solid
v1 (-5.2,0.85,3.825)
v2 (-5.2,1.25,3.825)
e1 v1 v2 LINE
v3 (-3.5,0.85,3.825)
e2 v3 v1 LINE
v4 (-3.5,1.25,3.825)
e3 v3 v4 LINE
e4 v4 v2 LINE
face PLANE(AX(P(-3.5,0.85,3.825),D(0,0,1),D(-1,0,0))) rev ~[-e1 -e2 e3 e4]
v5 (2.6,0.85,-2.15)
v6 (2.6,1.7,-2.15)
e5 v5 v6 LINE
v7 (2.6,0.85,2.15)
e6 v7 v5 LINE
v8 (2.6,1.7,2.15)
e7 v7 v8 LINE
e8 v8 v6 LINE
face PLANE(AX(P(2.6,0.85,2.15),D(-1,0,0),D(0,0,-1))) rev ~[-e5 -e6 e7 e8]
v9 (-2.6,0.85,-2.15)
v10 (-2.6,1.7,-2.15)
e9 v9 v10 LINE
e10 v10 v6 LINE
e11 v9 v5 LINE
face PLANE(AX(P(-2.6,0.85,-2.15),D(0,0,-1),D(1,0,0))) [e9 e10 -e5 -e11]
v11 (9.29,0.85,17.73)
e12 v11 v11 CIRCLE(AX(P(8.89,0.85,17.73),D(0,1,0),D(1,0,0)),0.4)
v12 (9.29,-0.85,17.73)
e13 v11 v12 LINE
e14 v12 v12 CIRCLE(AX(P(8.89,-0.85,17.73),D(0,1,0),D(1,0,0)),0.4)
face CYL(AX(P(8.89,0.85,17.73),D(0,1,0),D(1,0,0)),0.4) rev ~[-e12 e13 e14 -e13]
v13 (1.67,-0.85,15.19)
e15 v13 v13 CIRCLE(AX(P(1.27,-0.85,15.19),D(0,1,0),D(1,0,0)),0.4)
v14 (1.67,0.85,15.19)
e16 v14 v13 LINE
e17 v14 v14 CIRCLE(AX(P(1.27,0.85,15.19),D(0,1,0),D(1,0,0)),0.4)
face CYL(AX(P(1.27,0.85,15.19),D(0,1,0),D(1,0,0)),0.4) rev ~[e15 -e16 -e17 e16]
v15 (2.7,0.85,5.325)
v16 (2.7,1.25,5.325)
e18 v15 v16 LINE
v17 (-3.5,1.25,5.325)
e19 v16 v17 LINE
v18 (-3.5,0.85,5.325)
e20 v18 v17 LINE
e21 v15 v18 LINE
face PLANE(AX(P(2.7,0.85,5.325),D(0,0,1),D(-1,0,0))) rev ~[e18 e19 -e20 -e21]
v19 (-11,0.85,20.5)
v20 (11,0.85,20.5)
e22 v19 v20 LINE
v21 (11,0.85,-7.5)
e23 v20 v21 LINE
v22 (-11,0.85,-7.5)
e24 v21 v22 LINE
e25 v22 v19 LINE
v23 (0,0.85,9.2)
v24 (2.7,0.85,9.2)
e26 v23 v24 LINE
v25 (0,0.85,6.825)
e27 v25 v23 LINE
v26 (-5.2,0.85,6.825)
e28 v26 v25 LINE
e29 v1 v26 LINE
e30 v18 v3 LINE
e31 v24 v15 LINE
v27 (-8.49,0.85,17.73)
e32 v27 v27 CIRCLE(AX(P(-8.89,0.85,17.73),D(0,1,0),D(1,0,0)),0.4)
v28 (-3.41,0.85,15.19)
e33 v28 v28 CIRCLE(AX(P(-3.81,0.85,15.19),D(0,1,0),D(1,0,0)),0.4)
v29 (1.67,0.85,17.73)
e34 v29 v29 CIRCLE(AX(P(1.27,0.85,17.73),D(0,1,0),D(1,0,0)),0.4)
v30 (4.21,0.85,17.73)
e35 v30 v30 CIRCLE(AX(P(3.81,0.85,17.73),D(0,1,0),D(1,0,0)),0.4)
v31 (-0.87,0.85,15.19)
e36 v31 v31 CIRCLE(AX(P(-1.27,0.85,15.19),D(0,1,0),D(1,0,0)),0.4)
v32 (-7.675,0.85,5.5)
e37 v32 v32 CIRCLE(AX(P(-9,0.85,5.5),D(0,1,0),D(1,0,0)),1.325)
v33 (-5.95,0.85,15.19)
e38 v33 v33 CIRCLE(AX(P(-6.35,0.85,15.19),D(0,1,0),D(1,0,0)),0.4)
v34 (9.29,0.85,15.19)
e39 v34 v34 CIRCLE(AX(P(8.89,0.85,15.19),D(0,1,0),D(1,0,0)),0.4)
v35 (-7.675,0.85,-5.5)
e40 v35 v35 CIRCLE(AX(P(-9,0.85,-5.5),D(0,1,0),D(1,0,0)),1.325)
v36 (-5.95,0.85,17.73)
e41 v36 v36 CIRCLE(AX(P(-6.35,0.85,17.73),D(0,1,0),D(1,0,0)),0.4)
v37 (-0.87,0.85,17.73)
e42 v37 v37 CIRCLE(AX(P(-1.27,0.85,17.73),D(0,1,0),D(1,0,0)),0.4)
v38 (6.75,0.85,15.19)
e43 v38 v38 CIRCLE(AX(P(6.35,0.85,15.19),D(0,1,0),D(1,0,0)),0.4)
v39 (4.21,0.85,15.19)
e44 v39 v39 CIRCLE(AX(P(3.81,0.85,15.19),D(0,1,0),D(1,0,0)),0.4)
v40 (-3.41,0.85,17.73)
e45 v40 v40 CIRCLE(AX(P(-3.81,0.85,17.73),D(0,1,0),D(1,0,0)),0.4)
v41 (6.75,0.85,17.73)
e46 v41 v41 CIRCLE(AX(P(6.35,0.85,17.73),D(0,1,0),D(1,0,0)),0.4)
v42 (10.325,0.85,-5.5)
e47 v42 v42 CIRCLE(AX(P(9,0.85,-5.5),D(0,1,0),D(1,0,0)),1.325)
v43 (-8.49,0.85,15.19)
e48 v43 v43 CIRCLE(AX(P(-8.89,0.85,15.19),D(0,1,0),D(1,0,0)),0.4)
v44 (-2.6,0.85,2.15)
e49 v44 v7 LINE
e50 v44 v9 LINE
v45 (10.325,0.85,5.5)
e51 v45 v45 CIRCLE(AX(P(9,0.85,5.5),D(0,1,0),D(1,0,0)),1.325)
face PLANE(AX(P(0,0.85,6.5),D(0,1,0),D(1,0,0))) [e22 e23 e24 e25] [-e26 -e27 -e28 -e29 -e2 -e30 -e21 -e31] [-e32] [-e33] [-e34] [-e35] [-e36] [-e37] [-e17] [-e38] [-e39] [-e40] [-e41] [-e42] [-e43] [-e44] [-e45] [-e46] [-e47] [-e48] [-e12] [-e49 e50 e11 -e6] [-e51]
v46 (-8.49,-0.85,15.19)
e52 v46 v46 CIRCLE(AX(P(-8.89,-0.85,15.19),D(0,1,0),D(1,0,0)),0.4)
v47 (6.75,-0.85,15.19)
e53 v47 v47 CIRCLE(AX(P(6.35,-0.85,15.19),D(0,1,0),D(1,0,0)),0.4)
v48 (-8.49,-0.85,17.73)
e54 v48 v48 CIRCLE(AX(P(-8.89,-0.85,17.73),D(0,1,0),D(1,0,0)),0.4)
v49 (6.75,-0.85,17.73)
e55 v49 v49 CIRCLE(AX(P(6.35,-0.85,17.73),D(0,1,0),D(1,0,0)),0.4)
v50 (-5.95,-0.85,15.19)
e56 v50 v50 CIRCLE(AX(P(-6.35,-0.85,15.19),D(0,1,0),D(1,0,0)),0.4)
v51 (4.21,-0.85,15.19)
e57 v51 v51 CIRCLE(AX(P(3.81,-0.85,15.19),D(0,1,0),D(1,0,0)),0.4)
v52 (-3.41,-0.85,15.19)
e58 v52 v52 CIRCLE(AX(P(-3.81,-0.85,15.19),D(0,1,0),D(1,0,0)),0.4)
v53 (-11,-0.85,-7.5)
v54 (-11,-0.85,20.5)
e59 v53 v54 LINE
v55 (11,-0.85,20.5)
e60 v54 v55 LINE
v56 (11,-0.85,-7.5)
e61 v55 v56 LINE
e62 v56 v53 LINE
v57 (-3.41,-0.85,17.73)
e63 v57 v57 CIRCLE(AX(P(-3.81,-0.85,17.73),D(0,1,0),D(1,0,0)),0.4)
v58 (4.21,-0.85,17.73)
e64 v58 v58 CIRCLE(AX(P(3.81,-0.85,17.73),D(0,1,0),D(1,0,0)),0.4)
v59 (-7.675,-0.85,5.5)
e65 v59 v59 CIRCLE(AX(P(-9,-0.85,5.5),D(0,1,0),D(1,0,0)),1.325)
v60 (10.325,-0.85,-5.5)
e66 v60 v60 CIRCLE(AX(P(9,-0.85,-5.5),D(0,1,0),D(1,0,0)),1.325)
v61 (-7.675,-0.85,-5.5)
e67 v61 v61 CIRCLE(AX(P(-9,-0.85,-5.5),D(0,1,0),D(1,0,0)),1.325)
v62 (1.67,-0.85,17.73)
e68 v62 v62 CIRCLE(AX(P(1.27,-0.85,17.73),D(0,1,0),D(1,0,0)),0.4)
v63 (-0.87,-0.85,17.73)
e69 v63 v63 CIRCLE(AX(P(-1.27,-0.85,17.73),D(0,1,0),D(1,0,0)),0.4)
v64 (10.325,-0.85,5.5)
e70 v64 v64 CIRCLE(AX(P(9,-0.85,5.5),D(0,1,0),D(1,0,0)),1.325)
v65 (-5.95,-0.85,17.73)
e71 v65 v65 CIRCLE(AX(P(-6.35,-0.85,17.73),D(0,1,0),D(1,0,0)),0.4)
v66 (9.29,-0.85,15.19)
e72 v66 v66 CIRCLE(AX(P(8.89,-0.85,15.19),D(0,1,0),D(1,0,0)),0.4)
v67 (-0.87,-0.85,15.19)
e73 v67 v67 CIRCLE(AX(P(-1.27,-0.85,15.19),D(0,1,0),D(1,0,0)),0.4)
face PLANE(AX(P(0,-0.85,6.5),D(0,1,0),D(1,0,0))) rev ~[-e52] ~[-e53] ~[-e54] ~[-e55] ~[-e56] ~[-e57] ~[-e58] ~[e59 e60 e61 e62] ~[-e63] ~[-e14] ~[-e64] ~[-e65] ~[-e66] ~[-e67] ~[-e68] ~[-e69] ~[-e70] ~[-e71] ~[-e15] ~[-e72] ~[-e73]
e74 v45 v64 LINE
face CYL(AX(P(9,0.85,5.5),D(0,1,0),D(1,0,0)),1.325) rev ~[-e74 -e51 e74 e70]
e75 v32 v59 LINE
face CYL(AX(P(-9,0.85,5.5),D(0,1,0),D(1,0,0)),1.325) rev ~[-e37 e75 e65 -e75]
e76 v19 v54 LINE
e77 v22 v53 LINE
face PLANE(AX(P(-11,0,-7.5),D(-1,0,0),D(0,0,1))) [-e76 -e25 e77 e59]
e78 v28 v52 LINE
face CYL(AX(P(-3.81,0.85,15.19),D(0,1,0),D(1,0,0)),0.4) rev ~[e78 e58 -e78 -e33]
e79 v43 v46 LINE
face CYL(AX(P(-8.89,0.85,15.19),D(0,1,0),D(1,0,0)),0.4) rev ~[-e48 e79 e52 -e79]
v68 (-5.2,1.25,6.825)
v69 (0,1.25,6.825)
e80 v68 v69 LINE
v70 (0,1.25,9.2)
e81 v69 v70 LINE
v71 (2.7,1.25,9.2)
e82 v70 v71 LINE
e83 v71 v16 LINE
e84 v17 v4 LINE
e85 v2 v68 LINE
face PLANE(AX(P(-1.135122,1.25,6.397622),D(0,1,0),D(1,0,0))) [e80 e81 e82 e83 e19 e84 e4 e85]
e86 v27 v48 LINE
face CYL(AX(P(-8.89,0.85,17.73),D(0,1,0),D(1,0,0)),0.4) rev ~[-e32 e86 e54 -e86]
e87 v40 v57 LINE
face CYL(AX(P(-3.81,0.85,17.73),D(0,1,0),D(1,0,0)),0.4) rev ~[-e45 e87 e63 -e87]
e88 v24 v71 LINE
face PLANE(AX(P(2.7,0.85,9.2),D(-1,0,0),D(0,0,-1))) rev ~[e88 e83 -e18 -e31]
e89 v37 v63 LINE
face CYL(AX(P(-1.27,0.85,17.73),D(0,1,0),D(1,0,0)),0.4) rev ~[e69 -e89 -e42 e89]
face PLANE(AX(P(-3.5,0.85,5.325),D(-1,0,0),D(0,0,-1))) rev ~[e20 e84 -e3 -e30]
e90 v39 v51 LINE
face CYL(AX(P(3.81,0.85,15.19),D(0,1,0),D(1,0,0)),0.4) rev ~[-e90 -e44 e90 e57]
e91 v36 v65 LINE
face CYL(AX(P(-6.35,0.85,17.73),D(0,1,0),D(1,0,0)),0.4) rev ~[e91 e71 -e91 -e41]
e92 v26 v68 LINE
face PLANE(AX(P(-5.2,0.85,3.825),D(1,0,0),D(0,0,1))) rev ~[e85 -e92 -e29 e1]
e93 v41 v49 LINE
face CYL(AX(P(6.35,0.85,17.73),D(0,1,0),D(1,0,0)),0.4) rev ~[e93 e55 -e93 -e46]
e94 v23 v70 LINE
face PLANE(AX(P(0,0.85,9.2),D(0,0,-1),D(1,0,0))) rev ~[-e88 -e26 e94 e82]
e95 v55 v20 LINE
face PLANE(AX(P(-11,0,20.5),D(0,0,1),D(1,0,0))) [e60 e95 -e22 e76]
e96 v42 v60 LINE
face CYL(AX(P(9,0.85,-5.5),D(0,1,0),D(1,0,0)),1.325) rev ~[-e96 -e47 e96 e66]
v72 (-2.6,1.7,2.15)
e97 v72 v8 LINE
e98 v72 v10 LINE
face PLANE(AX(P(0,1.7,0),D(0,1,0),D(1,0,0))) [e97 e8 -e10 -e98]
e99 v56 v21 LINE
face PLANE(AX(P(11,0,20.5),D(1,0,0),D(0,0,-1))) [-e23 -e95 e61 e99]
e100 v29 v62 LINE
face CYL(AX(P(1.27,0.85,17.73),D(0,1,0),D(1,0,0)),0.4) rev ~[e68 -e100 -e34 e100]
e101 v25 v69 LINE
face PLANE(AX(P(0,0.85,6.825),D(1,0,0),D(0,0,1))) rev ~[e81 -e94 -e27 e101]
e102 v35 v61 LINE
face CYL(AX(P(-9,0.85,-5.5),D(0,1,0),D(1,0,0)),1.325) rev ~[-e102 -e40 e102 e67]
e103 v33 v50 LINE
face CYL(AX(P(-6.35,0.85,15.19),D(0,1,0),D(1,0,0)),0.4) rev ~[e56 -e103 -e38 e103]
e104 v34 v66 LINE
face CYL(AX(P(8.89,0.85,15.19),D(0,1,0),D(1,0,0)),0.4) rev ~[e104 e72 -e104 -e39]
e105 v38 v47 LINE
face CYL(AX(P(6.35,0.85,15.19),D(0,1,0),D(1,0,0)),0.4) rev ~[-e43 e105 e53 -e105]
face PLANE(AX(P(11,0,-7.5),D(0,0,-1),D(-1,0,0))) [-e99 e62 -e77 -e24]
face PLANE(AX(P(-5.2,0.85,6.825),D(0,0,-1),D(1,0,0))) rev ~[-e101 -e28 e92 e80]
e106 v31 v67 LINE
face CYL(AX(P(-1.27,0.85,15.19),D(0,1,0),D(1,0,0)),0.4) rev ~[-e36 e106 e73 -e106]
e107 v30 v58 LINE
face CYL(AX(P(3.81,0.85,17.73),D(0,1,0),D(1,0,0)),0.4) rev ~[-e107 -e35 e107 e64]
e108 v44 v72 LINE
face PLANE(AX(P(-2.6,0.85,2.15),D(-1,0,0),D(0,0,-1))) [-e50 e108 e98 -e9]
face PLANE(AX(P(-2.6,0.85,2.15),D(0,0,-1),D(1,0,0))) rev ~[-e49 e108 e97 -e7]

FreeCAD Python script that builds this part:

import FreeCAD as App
import Part
import Sketcher

V = App.Vector
Q = App.Units.Quantity


def add_polygon(sketch, points):
    """Adds a closed chain of lines whose ends are joined by coincident constraints."""
    first, n = sketch.GeometryCount, len(points)
    for a, b in zip(points, points[1:] + points[:1]):
        sketch.addGeometry(Part.LineSegment(App.Vector(*a, 0), App.Vector(*b, 0)), False)
    for i in range(n):
        sketch.addConstraint(Sketcher.Constraint("Coincident", first + i, 2, first + (i + 1) % n, 1))

doc = App.newDocument("Part")
params = doc.addObject("Spreadsheet::Sheet", "Params")
for row, (alias, value) in enumerate([
    ("sketch1_width", "22 mm"),
    ("sketch1_height", "28 mm"),
    ("pad1_length", "1.7 mm"),
    ("sketch2_diameter", "0.8 mm"),
    ("sketch2_diameter2", "2.65 mm"),
    ("sketch3_width", "5.2 mm"),
    ("sketch3_height", "4.3 mm"),
    ("pad2_length", "0.85 mm"),
    ("sketch4_height", "3 mm"),
    ("sketch4_width", "5.2 mm"),
    ("sketch4_width2", "2.7 mm"),
    ("sketch4_width3", "6.2 mm"),
    ("sketch4_height2", "1.5 mm"),
    ("pad3_length", "0.4 mm"),
], start=1):
    params.set(f"A{row}", alias)
    params.set(f"B{row}", "=" + value)
    params.setAlias(f"B{row}", alias)

body = doc.addObject("PartDesign::Body", "Body")

# Sketch on XZ plane
sketch1 = body.newObject("Sketcher::SketchObject", "Sketch")
sketch1.AttachmentSupport = (doc.getObject("XZ_Plane"), [""])
sketch1.MapMode = "FlatFace"
add_polygon(sketch1, [(-11, 20), (11, 20), (11, -8), (-11, -8)])  # lines 0-3
sketch1.addConstraint(Sketcher.Constraint("Horizontal", 0))
sketch1.addConstraint(Sketcher.Constraint("Vertical", 1))
sketch1.addConstraint(Sketcher.Constraint("Horizontal", 2))
sketch1.addConstraint(Sketcher.Constraint("Vertical", 3))
sketch1.addConstraint(Sketcher.Constraint("DistanceX", 0, 1, 0, 2, Q("22 mm")))
sketch1.addConstraint(Sketcher.Constraint("DistanceY", 1, 2, 1, 1, Q("28 mm")))
sketch1.addConstraint(Sketcher.Constraint("DistanceX", -1, 1, 0, 2, Q("11 mm")))
sketch1.addConstraint(Sketcher.Constraint("DistanceY", -1, 1, 0, 2, Q("20.5 mm")))
sketch1.setExpression("Constraints[8]", "Params.sketch1_width")
sketch1.setExpression("Constraints[9]", "Params.sketch1_height")
pad1 = body.newObject("PartDesign::Pad", "Pad")
pad1.Profile = sketch1
pad1.setExpression("Length", "Params.pad1_length")
pad1.Midplane = True

# Sketch on XZ plane
sketch2 = body.newObject("Sketcher::SketchObject", "Sketch001")
sketch2.AttachmentSupport = (doc.getObject("XZ_Plane"), [""])
sketch2.MapMode = "FlatFace"
sketch2.AttachmentOffset = App.Placement(V(0, 0, -0.85), App.Rotation())
sketch2.addGeometry(Part.Circle(V(-9, -5.5, 0), V(0, 0, 1), 1.32), False)
sketch2.addGeometry(Part.Circle(V(9, -5.5, 0), V(0, 0, 1), 1.32), False)
sketch2.addGeometry(Part.Circle(V(9, 5.5, 0), V(0, 0, 1), 1.32), False)
sketch2.addGeometry(Part.Circle(V(-9, 5.5, 0), V(0, 0, 1), 1.32), False)
sketch2.addGeometry(Part.Circle(V(-8.89, 15.19, 0), V(0, 0, 1), 0.4), False)
sketch2.addGeometry(Part.Circle(V(-6.35, 15.19, 0), V(0, 0, 1), 0.4), False)
sketch2.addGeometry(Part.Circle(V(-3.81, 15.19, 0), V(0, 0, 1), 0.4), False)
sketch2.addGeometry(Part.Circle(V(-1.27, 15.19, 0), V(0, 0, 1), 0.4), False)
sketch2.addGeometry(Part.Circle(V(1.27, 15.19, 0), V(0, 0, 1), 0.4), False)
sketch2.addGeometry(Part.Circle(V(3.81, 15.19, 0), V(0, 0, 1), 0.4), False)
sketch2.addGeometry(Part.Circle(V(6.35, 15.19, 0), V(0, 0, 1), 0.4), False)
sketch2.addGeometry(Part.Circle(V(8.89, 15.19, 0), V(0, 0, 1), 0.4), False)
sketch2.addGeometry(Part.Circle(V(-6.35, 17.73, 0), V(0, 0, 1), 0.4), False)
sketch2.addGeometry(Part.Circle(V(-3.81, 17.73, 0), V(0, 0, 1), 0.4), False)
sketch2.addGeometry(Part.Circle(V(-1.27, 17.73, 0), V(0, 0, 1), 0.4), False)
sketch2.addGeometry(Part.Circle(V(1.27, 17.73, 0), V(0, 0, 1), 0.4), False)
sketch2.addGeometry(Part.Circle(V(3.81, 17.73, 0), V(0, 0, 1), 0.4), False)
sketch2.addGeometry(Part.Circle(V(6.35, 17.73, 0), V(0, 0, 1), 0.4), False)
sketch2.addGeometry(Part.Circle(V(8.89, 17.73, 0), V(0, 0, 1), 0.4), False)
sketch2.addGeometry(Part.Circle(V(-8.89, 17.73, 0), V(0, 0, 1), 0.4), False)
sketch2.addConstraint(Sketcher.Constraint("Equal", 0, 1))
sketch2.addConstraint(Sketcher.Constraint("Equal", 1, 2))
sketch2.addConstraint(Sketcher.Constraint("Equal", 2, 3))
sketch2.addConstraint(Sketcher.Constraint("Equal", 4, 5))
sketch2.addConstraint(Sketcher.Constraint("Equal", 5, 6))
sketch2.addConstraint(Sketcher.Constraint("Equal", 6, 7))
sketch2.addConstraint(Sketcher.Constraint("Equal", 7, 8))
sketch2.addConstraint(Sketcher.Constraint("Equal", 8, 9))
sketch2.addConstraint(Sketcher.Constraint("Equal", 9, 10))
sketch2.addConstraint(Sketcher.Constraint("Equal", 10, 11))
sketch2.addConstraint(Sketcher.Constraint("Equal", 11, 12))
sketch2.addConstraint(Sketcher.Constraint("Equal", 12, 13))
sketch2.addConstraint(Sketcher.Constraint("Equal", 13, 14))
sketch2.addConstraint(Sketcher.Constraint("Equal", 14, 15))
sketch2.addConstraint(Sketcher.Constraint("Equal", 15, 16))
sketch2.addConstraint(Sketcher.Constraint("Equal", 16, 17))
sketch2.addConstraint(Sketcher.Constraint("Equal", 17, 18))
sketch2.addConstraint(Sketcher.Constraint("Equal", 18, 19))
sketch2.addConstraint(Sketcher.Constraint("Symmetric", 0, 3, 2, 3, -1, 1))
sketch2.addConstraint(Sketcher.Constraint("Symmetric", 1, 3, 3, 3, -1, 1))
sketch2.addConstraint(Sketcher.Constraint("Symmetric", 0, 3, 1, 3, -2))
sketch2.addConstraint(Sketcher.Constraint("Symmetric", 7, 3, 8, 3, -2))
sketch2.addConstraint(Sketcher.Constraint("Symmetric", 6, 3, 9, 3, -2))
sketch2.addConstraint(Sketcher.Constraint("Symmetric", 5, 3, 10, 3, -2))
sketch2.addConstraint(Sketcher.Constraint("Symmetric", 4, 3, 11, 3, -2))
sketch2.addConstraint(Sketcher.Constraint("Symmetric", 14, 3, 15, 3, -2))
sketch2.addConstraint(Sketcher.Constraint("Symmetric", 13, 3, 16, 3, -2))
sketch2.addConstraint(Sketcher.Constraint("Symmetric", 12, 3, 17, 3, -2))
sketch2.addConstraint(Sketcher.Constraint("Symmetric", 18, 3, 19, 3, -2))
sketch2.addConstraint(Sketcher.Constraint("Horizontal", 4, 3, 5, 3))
sketch2.addConstraint(Sketcher.Constraint("Horizontal", 5, 3, 6, 3))
sketch2.addConstraint(Sketcher.Constraint("Horizontal", 6, 3, 7, 3))
sketch2.addConstraint(Sketcher.Constraint("Horizontal", 12, 3, 13, 3))
sketch2.addConstraint(Sketcher.Constraint("Horizontal", 13, 3, 14, 3))
sketch2.addConstraint(Sketcher.Constraint("Horizontal", 17, 3, 18, 3))
sketch2.addConstraint(Sketcher.Constraint("Vertical", 5, 3, 12, 3))
sketch2.addConstraint(Sketcher.Constraint("Vertical", 6, 3, 13, 3))
sketch2.addConstraint(Sketcher.Constraint("Vertical", 7, 3, 14, 3))
sketch2.addConstraint(Sketcher.Constraint("Vertical", 11, 3, 18, 3))
sketch2.addConstraint(Sketcher.Constraint("Diameter", 4, Q("0.8 mm")))
sketch2.addConstraint(Sketcher.Constraint("Diameter", 0, Q("2.65 mm")))
sketch2.addConstraint(Sketcher.Constraint("DistanceX", 0, 3, -1, 1, Q("9 mm")))
sketch2.addConstraint(Sketcher.Constraint("DistanceY", 1, 3, 2, 3, Q("11 mm")))
sketch2.addConstraint(Sketcher.Constraint("DistanceX", 4, 3, -1, 1, Q("8.89 mm")))
sketch2.addConstraint(Sketcher.Constraint("DistanceY", -1, 1, 4, 3, Q("15.19 mm")))
sketch2.addConstraint(Sketcher.Constraint("DistanceX", 5, 3, -1, 1, Q("6.35 mm")))
sketch2.addConstraint(Sketcher.Constraint("DistanceX", 6, 3, -1, 1, Q("3.81 mm")))
sketch2.addConstraint(Sketcher.Constraint("DistanceX", 7, 3, -1, 1, Q("1.27 mm")))
sketch2.addConstraint(Sketcher.Constraint("DistanceY", -1, 1, 12, 3, Q("17.73 mm")))
sketch2.setExpression("Constraints[39]", "Params.sketch2_diameter")
sketch2.setExpression("Constraints[40]", "Params.sketch2_diameter2")
pocket1 = body.newObject("PartDesign::Pocket", "Pocket")
pocket1.Profile = sketch2
pocket1.Type = "ThroughAll"
pocket1.Reversed = True

# Sketch on XZ plane
sketch3 = body.newObject("Sketcher::SketchObject", "Sketch002")
sketch3.AttachmentSupport = (doc.getObject("XZ_Plane"), [""])
sketch3.MapMode = "FlatFace"
sketch3.AttachmentOffset = App.Placement(V(0, 0, -0.85), App.Rotation())
add_polygon(sketch3, [(-2.6, -2.1), (-2.6, 2.1), (2.6, 2.1), (2.6, -2.1)])  # lines 0-3
sketch3.addConstraint(Sketcher.Constraint("Vertical", 0))
sketch3.addConstraint(Sketcher.Constraint("Horizontal", 1))
sketch3.addConstraint(Sketcher.Constraint("Vertical", 2))
sketch3.addConstraint(Sketcher.Constraint("Horizontal", 3))
sketch3.addConstraint(Sketcher.Constraint("Symmetric", 0, 2, 2, 2, -1, 1))
sketch3.addConstraint(Sketcher.Constraint("DistanceX", 1, 1, 1, 2, Q("5.2 mm")))
sketch3.addConstraint(Sketcher.Constraint("DistanceY", 0, 1, 0, 2, Q("4.3 mm")))
sketch3.setExpression("Constraints[9]", "Params.sketch3_width")
sketch3.setExpression("Constraints[10]", "Params.sketch3_height")
pad2 = body.newObject("PartDesign::Pad", "Pad001")
pad2.Profile = sketch3
pad2.setExpression("Length", "Params.pad2_length")
pad2.Reversed = True

# Sketch on XZ plane
sketch4 = body.newObject("Sketcher::SketchObject", "Sketch003")
sketch4.AttachmentSupport = (doc.getObject("XZ_Plane"), [""])
sketch4.MapMode = "FlatFace"
sketch4.AttachmentOffset = App.Placement(V(0, 0, -0.85), App.Rotation())
add_polygon(sketch4, [(-5.2, 3.8), (-5.2, 6.8), (0, 6.8), (0, 9.2), (2.7, 9.2), (2.7, 5.3), (-3.5, 5.3), (-3.5, 3.8)])  # lines 0-7
sketch4.addConstraint(Sketcher.Constraint("Vertical", 0))
sketch4.addConstraint(Sketcher.Constraint("Horizontal", 1))
sketch4.addConstraint(Sketcher.Constraint("Vertical", 2))
sketch4.addConstraint(Sketcher.Constraint("Horizontal", 3))
sketch4.addConstraint(Sketcher.Constraint("Vertical", 4))
sketch4.addConstraint(Sketcher.Constraint("Horizontal", 5))
sketch4.addConstraint(Sketcher.Constraint("Vertical", 6))
sketch4.addConstraint(Sketcher.Constraint("Horizontal", 7))
sketch4.addConstraint(Sketcher.Constraint("PointOnObject", 1, 2, -2))
sketch4.addConstraint(Sketcher.Constraint("DistanceY", 0, 1, 0, 2, Q("3 mm")))
sketch4.addConstraint(Sketcher.Constraint("DistanceX", 1, 1, 1, 2, Q("5.2 mm")))
sketch4.addConstraint(Sketcher.Constraint("DistanceX", 3, 1, 3, 2, Q("2.7 mm")))
sketch4.addConstraint(Sketcher.Constraint("DistanceX", 5, 2, 5, 1, Q("6.2 mm")))
sketch4.addConstraint(Sketcher.Constraint("DistanceY", 6, 2, 6, 1, Q("1.5 mm")))
sketch4.addConstraint(Sketcher.Constraint("DistanceY", -1, 1, 2, 2, Q("9.2 mm")))
sketch4.addConstraint(Sketcher.Constraint("DistanceY", 2, 1, 2, 2, Q("2.375 mm")))
sketch4.setExpression("Constraints[17]", "Params.sketch4_height")
sketch4.setExpression("Constraints[18]", "Params.sketch4_width")
sketch4.setExpression("Constraints[19]", "Params.sketch4_width2")
sketch4.setExpression("Constraints[20]", "Params.sketch4_width3")
sketch4.setExpression("Constraints[21]", "Params.sketch4_height2")
pad3 = body.newObject("PartDesign::Pad", "Pad002")
pad3.Profile = sketch4
pad3.setExpression("Length", "Params.pad3_length")
pad3.Reversed = True

doc.recompute()
